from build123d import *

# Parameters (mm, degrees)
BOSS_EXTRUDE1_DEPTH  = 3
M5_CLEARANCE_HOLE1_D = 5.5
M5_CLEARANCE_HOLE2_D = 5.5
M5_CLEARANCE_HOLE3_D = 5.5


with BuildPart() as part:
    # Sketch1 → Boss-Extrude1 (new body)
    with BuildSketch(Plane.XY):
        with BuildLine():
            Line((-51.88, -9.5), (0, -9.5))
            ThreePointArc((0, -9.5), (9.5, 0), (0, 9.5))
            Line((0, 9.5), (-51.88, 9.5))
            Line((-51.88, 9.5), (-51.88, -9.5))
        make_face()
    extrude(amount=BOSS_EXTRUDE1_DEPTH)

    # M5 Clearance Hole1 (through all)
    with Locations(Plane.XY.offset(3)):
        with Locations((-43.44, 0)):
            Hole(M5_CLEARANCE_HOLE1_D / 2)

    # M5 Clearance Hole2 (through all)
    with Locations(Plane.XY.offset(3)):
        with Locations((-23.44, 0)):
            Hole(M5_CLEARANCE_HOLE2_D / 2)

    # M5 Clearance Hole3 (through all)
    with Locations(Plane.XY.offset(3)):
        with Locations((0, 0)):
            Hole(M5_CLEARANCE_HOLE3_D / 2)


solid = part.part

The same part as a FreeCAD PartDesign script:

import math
import FreeCAD as App
import Part
import Sketcher

V = App.Vector
Q = App.Units.Quantity

doc = App.newDocument("Part")
body = doc.addObject("PartDesign::Body", "Body")

sketch1 = body.newObject("Sketcher::SketchObject", "Sketch")
sketch1.AttachmentSupport = (doc.getObject("XY_Plane"), [""])
sketch1.MapMode = "FlatFace"
sketch1.addGeometry(Part.LineSegment(V(-52, -10, 0), V(0, -10, 0)), False)
sketch1.addGeometry(Part.ArcOfCircle(Part.Circle(V(0, 0, 0), V(0, 0, 1), 10), math.radians(-90), math.radians(90)), False)
sketch1.addGeometry(Part.LineSegment(V(0, 10, 0), V(-52, 10, 0)), False)
sketch1.addGeometry(Part.LineSegment(V(-52, 10, 0), V(-52, -10, 0)), False)
sketch1.addConstraint(Sketcher.Constraint("Tangent", 0, 2, 1, 1))
sketch1.addConstraint(Sketcher.Constraint("Tangent", 1, 2, 2, 1))
sketch1.addConstraint(Sketcher.Constraint("Coincident", 2, 2, 3, 1))
sketch1.addConstraint(Sketcher.Constraint("Coincident", 3, 2, 0, 1))
sketch1.addConstraint(Sketcher.Constraint("Horizontal", 0))
sketch1.addConstraint(Sketcher.Constraint("Horizontal", 2))
sketch1.addConstraint(Sketcher.Constraint("Vertical", 3))
sketch1.addConstraint(Sketcher.Constraint("Coincident", 1, 3, -1, 1))
sketch1.addConstraint(Sketcher.Constraint("Radius", 1, Q("9.5 mm")))
sketch1.addConstraint(Sketcher.Constraint("DistanceX", 0, 1, 0, 2, Q("51.88 mm")))
pad1 = body.newObject("PartDesign::Pad", "Pad")
pad1.Profile = sketch1
pad1.Length = 3

sketch2 = body.newObject("Sketcher::SketchObject", "Sketch001")
sketch2.AttachmentSupport = (doc.getObject("XY_Plane"), [""])
sketch2.MapMode = "FlatFace"
sketch2.AttachmentOffset = App.Placement(V(0, 0, 3), App.Rotation())
sketch2.addGeometry(Part.Circle(V(-43.4, 0, 0), V(0, 0, 1), 2.8), False)
sketch2.addConstraint(Sketcher.Constraint("PointOnObject", 0, 3, -1))
sketch2.addConstraint(Sketcher.Constraint("Diameter", 0, Q("5.5 mm")))
sketch2.addConstraint(Sketcher.Constraint("DistanceX", 0, 3, -1, 1, Q("43.44 mm")))
doc.recompute()
hole = body.newObject("PartDesign::Hole", "Hole")
hole.Profile = sketch2
hole.ThreadType = "None"
hole.Diameter = 5.5
hole.DepthType = "ThroughAll"

sketch3 = body.newObject("Sketcher::SketchObject", "Sketch002")
sketch3.AttachmentSupport = (doc.getObject("XY_Plane"), [""])
sketch3.MapMode = "FlatFace"
sketch3.AttachmentOffset = App.Placement(V(0, 0, 3), App.Rotation())
sketch3.addGeometry(Part.Circle(V(-23.4, 0, 0), V(0, 0, 1), 2.8), False)
sketch3.addConstraint(Sketcher.Constraint("PointOnObject", 0, 3, -1))
sketch3.addConstraint(Sketcher.Constraint("Diameter", 0, Q("5.5 mm")))
sketch3.addConstraint(Sketcher.Constraint("DistanceX", 0, 3, -1, 1, Q("23.44 mm")))
doc.recompute()
hole2 = body.newObject("PartDesign::Hole", "Hole001")
hole2.Profile = sketch3
hole2.ThreadType = "None"
hole2.Diameter = 5.5
hole2.DepthType = "ThroughAll"

sketch4 = body.newObject("Sketcher::SketchObject", "Sketch003")
sketch4.AttachmentSupport = (doc.getObject("XY_Plane"), [""])
sketch4.MapMode = "FlatFace"
sketch4.AttachmentOffset = App.Placement(V(0, 0, 3), App.Rotation())
sketch4.addGeometry(Part.Circle(V(0, 0, 0), V(0, 0, 1), 2.8), False)
sketch4.addConstraint(Sketcher.Constraint("Coincident", 0, 3, -1, 1))
sketch4.addConstraint(Sketcher.Constraint("Diameter", 0, Q("5.5 mm")))
doc.recompute()
hole3 = body.newObject("PartDesign::Hole", "Hole002")
hole3.Profile = sketch4
hole3.ThreadType = "None"
hole3.Diameter = 5.5
hole3.DepthType = "ThroughAll"

doc.recompute()
